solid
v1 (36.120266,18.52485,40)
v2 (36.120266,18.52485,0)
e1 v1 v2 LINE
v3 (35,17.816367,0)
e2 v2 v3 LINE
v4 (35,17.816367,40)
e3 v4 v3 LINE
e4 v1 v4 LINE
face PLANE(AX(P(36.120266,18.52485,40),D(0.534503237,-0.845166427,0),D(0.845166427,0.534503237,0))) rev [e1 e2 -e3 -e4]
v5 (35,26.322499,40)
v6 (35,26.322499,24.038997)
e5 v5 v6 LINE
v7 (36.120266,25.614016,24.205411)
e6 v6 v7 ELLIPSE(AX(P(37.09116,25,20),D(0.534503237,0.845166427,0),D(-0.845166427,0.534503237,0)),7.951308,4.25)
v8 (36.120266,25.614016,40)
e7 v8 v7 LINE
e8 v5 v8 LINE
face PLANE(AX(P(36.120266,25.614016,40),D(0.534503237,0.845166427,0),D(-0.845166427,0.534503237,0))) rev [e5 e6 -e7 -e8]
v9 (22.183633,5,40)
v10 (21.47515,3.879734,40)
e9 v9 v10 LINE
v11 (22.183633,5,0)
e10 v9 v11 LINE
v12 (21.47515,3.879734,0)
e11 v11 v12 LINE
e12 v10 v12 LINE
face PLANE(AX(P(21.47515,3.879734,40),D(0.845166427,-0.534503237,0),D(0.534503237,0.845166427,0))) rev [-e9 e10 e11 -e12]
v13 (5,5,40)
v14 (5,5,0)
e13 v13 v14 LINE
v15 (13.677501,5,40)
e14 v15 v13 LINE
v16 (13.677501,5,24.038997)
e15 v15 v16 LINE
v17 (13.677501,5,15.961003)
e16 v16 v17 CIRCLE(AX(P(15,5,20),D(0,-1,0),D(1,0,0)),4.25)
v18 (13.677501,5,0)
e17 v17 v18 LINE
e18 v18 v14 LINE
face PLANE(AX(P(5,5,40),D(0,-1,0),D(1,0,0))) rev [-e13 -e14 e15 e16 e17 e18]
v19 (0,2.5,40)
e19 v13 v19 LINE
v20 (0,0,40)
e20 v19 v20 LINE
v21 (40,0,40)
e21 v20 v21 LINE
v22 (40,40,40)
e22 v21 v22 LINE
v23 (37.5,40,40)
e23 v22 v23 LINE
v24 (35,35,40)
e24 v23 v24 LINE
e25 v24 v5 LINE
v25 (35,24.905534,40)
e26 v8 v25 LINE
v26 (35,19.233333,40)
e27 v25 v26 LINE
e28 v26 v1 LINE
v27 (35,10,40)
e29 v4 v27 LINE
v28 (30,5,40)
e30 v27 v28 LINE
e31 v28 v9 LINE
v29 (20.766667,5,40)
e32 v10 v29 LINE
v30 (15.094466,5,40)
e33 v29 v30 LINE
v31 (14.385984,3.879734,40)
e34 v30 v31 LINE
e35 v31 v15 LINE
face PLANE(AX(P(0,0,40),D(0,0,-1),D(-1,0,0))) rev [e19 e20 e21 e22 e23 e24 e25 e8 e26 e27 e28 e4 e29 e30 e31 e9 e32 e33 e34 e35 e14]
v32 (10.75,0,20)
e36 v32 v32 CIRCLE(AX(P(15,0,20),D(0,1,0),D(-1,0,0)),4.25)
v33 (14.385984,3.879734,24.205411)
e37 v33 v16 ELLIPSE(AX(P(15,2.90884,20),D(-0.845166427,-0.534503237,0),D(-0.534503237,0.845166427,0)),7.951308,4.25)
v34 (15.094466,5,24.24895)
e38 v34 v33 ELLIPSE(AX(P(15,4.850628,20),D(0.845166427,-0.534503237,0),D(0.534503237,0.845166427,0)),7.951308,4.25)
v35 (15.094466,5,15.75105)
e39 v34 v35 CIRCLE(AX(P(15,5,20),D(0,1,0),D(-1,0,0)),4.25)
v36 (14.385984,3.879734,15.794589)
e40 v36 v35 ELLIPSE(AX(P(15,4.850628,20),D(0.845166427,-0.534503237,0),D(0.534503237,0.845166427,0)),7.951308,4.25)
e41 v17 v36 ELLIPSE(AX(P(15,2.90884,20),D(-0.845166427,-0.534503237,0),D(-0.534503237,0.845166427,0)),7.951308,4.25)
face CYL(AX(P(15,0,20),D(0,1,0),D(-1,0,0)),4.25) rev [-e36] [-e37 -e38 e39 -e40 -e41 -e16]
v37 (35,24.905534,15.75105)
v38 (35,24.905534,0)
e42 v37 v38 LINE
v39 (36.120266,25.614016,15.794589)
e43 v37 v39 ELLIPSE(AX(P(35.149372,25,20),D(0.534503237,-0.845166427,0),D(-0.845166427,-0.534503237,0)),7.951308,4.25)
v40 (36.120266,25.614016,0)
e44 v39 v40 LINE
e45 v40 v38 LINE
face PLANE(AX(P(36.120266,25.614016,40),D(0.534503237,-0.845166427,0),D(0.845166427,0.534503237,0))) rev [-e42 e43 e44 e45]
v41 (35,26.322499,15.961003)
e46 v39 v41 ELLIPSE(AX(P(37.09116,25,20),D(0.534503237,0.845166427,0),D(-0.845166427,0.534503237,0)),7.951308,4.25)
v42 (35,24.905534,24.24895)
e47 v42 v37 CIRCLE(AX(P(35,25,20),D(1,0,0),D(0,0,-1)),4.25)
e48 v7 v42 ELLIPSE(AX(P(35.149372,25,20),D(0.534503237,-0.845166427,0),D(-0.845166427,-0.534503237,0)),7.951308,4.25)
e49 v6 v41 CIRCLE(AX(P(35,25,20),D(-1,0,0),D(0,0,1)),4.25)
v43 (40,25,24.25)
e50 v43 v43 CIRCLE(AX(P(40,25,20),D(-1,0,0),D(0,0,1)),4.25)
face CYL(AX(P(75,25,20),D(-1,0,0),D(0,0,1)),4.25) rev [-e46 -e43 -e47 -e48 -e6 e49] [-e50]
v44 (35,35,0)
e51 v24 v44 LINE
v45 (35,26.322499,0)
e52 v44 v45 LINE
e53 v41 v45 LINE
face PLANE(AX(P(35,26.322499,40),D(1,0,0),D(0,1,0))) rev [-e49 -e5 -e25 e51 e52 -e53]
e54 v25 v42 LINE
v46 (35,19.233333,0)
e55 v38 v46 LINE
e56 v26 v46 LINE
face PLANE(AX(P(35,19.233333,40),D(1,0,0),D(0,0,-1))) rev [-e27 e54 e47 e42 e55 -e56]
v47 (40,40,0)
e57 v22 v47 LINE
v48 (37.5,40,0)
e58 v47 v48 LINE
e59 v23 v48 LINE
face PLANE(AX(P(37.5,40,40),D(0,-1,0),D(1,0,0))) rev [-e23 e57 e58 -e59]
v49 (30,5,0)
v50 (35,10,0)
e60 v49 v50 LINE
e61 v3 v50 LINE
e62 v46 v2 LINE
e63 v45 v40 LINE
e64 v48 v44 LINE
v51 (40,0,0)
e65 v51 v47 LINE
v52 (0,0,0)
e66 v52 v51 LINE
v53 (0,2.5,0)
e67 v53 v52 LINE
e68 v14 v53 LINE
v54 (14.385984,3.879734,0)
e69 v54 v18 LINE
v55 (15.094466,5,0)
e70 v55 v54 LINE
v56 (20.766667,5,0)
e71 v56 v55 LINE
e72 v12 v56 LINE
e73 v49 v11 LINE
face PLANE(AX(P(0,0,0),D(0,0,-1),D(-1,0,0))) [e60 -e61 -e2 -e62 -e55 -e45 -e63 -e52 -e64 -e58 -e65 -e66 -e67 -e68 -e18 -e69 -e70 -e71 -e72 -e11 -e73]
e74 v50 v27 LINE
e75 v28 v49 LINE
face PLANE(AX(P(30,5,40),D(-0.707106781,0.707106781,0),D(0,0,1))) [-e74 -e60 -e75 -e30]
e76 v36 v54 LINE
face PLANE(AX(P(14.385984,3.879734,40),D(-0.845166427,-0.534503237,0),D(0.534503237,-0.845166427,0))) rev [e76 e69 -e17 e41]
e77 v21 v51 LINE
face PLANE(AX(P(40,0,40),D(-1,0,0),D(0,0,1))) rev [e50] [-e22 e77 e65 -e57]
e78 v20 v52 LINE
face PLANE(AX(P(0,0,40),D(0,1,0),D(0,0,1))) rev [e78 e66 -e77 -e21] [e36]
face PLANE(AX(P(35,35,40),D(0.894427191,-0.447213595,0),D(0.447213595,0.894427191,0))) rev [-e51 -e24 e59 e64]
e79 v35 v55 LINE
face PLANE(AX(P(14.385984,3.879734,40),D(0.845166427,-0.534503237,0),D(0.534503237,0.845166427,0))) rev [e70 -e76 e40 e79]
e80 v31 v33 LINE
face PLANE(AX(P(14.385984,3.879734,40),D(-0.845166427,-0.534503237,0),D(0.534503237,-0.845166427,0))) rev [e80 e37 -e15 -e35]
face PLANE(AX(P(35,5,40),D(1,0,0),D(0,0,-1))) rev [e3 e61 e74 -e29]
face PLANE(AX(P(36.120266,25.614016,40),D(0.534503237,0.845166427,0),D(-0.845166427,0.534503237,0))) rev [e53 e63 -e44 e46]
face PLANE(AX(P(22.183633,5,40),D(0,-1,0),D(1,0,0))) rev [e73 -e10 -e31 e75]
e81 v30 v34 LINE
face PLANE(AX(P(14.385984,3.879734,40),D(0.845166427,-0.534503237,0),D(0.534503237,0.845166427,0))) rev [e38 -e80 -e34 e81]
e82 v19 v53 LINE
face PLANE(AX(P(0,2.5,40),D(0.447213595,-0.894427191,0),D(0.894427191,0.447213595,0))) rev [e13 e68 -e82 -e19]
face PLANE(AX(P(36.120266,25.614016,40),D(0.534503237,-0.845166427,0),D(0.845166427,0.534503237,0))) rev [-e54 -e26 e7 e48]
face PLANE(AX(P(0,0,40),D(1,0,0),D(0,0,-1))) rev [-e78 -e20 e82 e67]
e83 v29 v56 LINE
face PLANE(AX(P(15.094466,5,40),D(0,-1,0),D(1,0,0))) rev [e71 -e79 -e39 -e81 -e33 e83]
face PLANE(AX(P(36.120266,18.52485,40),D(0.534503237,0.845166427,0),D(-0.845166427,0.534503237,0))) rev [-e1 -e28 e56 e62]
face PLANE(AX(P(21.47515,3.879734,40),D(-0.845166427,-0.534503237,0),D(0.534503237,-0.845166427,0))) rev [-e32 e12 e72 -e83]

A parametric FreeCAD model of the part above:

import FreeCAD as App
import Part
import Sketcher
from FreeCAD import Vector


def edges_at(feature, points):
    """Names of the edges that pass closest to the given points."""
    edges = feature.Shape.Edges
    near = lambda p: min(range(len(edges)), key=lambda i: edges[i].distToShape(Part.Vertex(*p))[0])
    return sorted({f"Edge{near(p) + 1}" for p in points})

doc = App.newDocument("Part")
params = doc.addObject("Spreadsheet::Sheet", "Params")
for row, (alias, value) in enumerate([
    ("sketch1_width", "40 mm"),
    ("sketch1_width2", "2.5 mm"),
    ("pad1_length", "40 mm"),
    ("chamfer_size", "5 mm"),
    ("sketch2_diameter", "8.5 mm"),
    ("sketch3_diameter", "8.5 mm"),
    ("pocket2_length", "40 mm"),
], start=1):
    params.set(f"A{row}", alias)
    params.set(f"B{row}", "=" + value)
    params.setAlias(f"B{row}", alias)

body = doc.addObject("PartDesign::Body", "Body")

sketch1 = doc.addObject("Sketcher::SketchObject", "Sketch")
body.addObject(sketch1)
sketch1.AttachmentSupport = (doc.XY_Plane, [""])
sketch1.MapMode = "FlatFace"
sketch1.addGeometry([
    Part.LineSegment(Vector(0, 0, 0), Vector(40, 0, 0)),
    Part.LineSegment(Vector(40, 0, 0), Vector(40, 40, 0)),
    Part.LineSegment(Vector(40, 40, 0), Vector(37.5, 40, 0)),
    Part.LineSegment(Vector(37.5, 40, 0), Vector(35, 35, 0)),
    Part.LineSegment(Vector(35, 35, 0), Vector(35, 26.3, 0)),
    Part.LineSegment(Vector(35, 26.3, 0), Vector(36.1, 25.6, 0)),
    Part.LineSegment(Vector(36.1, 25.6, 0), Vector(35, 24.9, 0)),
    Part.LineSegment(Vector(35, 24.9, 0), Vector(35, 19.2, 0)),
    Part.LineSegment(Vector(35, 19.2, 0), Vector(36.1, 18.5, 0)),
    Part.LineSegment(Vector(36.1, 18.5, 0), Vector(35, 17.8, 0)),
    Part.LineSegment(Vector(35, 17.8, 0), Vector(35, 5, 0)),
    Part.LineSegment(Vector(35, 5, 0), Vector(22.2, 5, 0)),
    Part.LineSegment(Vector(22.2, 5, 0), Vector(21.5, 3.9, 0)),
    Part.LineSegment(Vector(21.5, 3.9, 0), Vector(20.8, 5, 0)),
    Part.LineSegment(Vector(20.8, 5, 0), Vector(15.1, 5, 0)),
    Part.LineSegment(Vector(15.1, 5, 0), Vector(14.4, 3.9, 0)),
    Part.LineSegment(Vector(14.4, 3.9, 0), Vector(13.7, 5, 0)),
    Part.LineSegment(Vector(13.7, 5, 0), Vector(5, 5, 0)),
    Part.LineSegment(Vector(5, 5, 0), Vector(0, 2.5, 0)),
    Part.LineSegment(Vector(0, 2.5, 0), Vector(0, 0, 0)),
], False)
sketch1.addConstraint([
    Sketcher.Constraint("Coincident", 0, 2, 1, 1),
    Sketcher.Constraint("Coincident", 1, 2, 2, 1),
    Sketcher.Constraint("Coincident", 2, 2, 3, 1),
    Sketcher.Constraint("Coincident", 3, 2, 4, 1),
    Sketcher.Constraint("Coincident", 4, 2, 5, 1),
    Sketcher.Constraint("Coincident", 5, 2, 6, 1),
    Sketcher.Constraint("Coincident", 6, 2, 7, 1),
    Sketcher.Constraint("Coincident", 7, 2, 8, 1),
    Sketcher.Constraint("Coincident", 8, 2, 9, 1),
    Sketcher.Constraint("Coincident", 9, 2, 10, 1),
    Sketcher.Constraint("Coincident", 10, 2, 11, 1),
    Sketcher.Constraint("Coincident", 11, 2, 12, 1),
    Sketcher.Constraint("Coincident", 12, 2, 13, 1),
    Sketcher.Constraint("Coincident", 13, 2, 14, 1),
    Sketcher.Constraint("Coincident", 14, 2, 15, 1),
    Sketcher.Constraint("Coincident", 15, 2, 16, 1),
    Sketcher.Constraint("Coincident", 16, 2, 17, 1),
    Sketcher.Constraint("Coincident", 17, 2, 18, 1),
    Sketcher.Constraint("Coincident", 18, 2, 19, 1),
    Sketcher.Constraint("Coincident", 19, 2, 0, 1),
    Sketcher.Constraint("Horizontal", 0),
    Sketcher.Constraint("Vertical", 1),
    Sketcher.Constraint("Horizontal", 2),
    Sketcher.Constraint("Vertical", 4),
    Sketcher.Constraint("Vertical", 7),
    Sketcher.Constraint("Vertical", 10),
    Sketcher.Constraint("Horizontal", 11),
    Sketcher.Constraint("Horizontal", 14),
    Sketcher.Constraint("Horizontal", 17),
    Sketcher.Constraint("Vertical", 19),
    Sketcher.Constraint("Coincident", 19, 2, -1, 1),
    Sketcher.Constraint("Parallel", 5, 8),
    Sketcher.Constraint("Parallel", 6, 9),
    Sketcher.Constraint("Perpendicular", 8, 12),
    Sketcher.Constraint("Perpendicular", 9, 13),
    Sketcher.Constraint("Parallel", 12, 15),
    Sketcher.Constraint("Parallel", 13, 16),
    Sketcher.Constraint("Horizontal", 11, 2, 13, 2),
    Sketcher.Constraint("Horizontal", 12, 2, 15, 2),
    Sketcher.Constraint("Horizontal", 14, 2, 16, 2),
    Sketcher.Constraint("Vertical", 4, 2, 6, 2),
    Sketcher.Constraint("Vertical", 5, 2, 8, 2),
    Sketcher.Constraint("Vertical", 7, 2, 9, 2),
    Sketcher.Constraint("Equal", 0, 1),
    Sketcher.Constraint("Equal", 17, 4),
    Sketcher.Constraint("Equal", 14, 7),
    Sketcher.Constraint("Equal", 11, 10),
    Sketcher.Constraint("Equal", 2, 19),
    Sketcher.Constraint("Equal", 5, 6),
    Sketcher.Constraint("Equal", 9, 12),
    Sketcher.Constraint("Equal", 3, 18),
    Sketcher.Constraint("DistanceX", 0, 1, 0, 2, 40.0),
    Sketcher.Constraint("DistanceX", 2, 2, 2, 1, 2.5),
    Sketcher.Constraint("DistanceX", -1, 1, 3, 2, 35.0),
    Sketcher.Constraint("DistanceY", -1, 1, 3, 2, 35.0),
    Sketcher.Constraint("DistanceX", 14, 2, 14, 1, 5.672201),
    Sketcher.Constraint("DistanceX", 17, 2, 17, 1, 8.677501),
    Sketcher.Constraint("DistanceY", 12, 2, 7, 2, 15.353599),
    Sketcher.Constraint("DistanceX", 11, 2, 11, 1, 12.816367),
])
sketch1.setExpression("Constraints[51]", "Params.sketch1_width")
sketch1.setExpression("Constraints[52]", "Params.sketch1_width2")
pad1 = doc.addObject("PartDesign::Pad", "Pad")
body.addObject(pad1)
pad1.Profile = sketch1
pad1.setExpression("Length", "Params.pad1_length")
doc.recompute()

chamfer = doc.addObject("PartDesign::Chamfer", "Chamfer")
body.addObject(chamfer)
chamfer.Base = (pad1, edges_at(pad1, [(35, 5, 20)]))
chamfer.setExpression("Size", "Params.chamfer_size")

sketch2 = doc.addObject("Sketcher::SketchObject", "Sketch001")
body.addObject(sketch2)
sketch2.AttachmentSupport = (doc.XZ_Plane, [""])
sketch2.MapMode = "FlatFace"
sketch2.AttachmentOffset = App.Placement(Vector(0, 0, -5), App.Rotation())
sketch2.addGeometry(Part.Circle(Vector(15, 20, 0), Vector(0, 0, 1), 4.2), False)
sketch2.addConstraint([
    Sketcher.Constraint("Diameter", 0, 8.5),
    Sketcher.Constraint("DistanceX", -1, 1, 0, 3, 15.0),
    Sketcher.Constraint("DistanceY", -1, 1, 0, 3, 20.0),
])
sketch2.setExpression("Constraints[0]", "Params.sketch2_diameter")
pocket1 = doc.addObject("PartDesign::Pocket", "Pocket")
body.addObject(pocket1)
pocket1.Profile = sketch2
pocket1.Type = "ThroughAll"
pocket1.Reversed = True

sketch3 = doc.addObject("Sketcher::SketchObject", "Sketch002")
body.addObject(sketch3)
sketch3.AttachmentSupport = (doc.YZ_Plane, [""])
sketch3.MapMode = "FlatFace"
sketch3.AttachmentOffset = App.Placement(Vector(0, 0, 35), App.Rotation())
sketch3.addGeometry(Part.Circle(Vector(25, 20, 0), Vector(0, 0, 1), 4.2), False)
sketch3.addConstraint([
    Sketcher.Constraint("Diameter", 0, 8.5),
    Sketcher.Constraint("DistanceX", -1, 1, 0, 3, 25.0),
    Sketcher.Constraint("DistanceY", -1, 1, 0, 3, 20.0),
])
sketch3.setExpression("Constraints[0]", "Params.sketch3_diameter")
pocket2 = doc.addObject("PartDesign::Pocket", "Pocket001")
body.addObject(pocket2)
pocket2.Profile = sketch3
pocket2.setExpression("Length", "Params.pocket2_length")
pocket2.Reversed = True

doc.recompute()
